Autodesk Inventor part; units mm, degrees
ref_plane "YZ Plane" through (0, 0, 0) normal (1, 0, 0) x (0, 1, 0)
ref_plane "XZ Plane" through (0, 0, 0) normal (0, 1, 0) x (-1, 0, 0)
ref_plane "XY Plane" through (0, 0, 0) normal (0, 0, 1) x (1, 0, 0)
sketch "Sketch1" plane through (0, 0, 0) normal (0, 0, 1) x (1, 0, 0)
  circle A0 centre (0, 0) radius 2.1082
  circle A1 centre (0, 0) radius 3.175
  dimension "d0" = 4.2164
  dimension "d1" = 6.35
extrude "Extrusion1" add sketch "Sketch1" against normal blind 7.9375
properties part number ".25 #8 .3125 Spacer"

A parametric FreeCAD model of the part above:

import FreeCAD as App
import Part
import Sketcher

V = App.Vector
Q = App.Units.Quantity

doc = App.newDocument("Part")
body = doc.addObject("PartDesign::Body", "Body")

sketch1 = body.newObject("Sketcher::SketchObject", "Sketch")
sketch1.AttachmentSupport = (doc.getObject("XY_Plane"), [""])
sketch1.MapMode = "FlatFace"
sketch1.addGeometry([
    Part.Circle(V(0, 0, 0), V(0, 0, 1), 3.2),
    Part.Circle(V(0, 0, 0), V(0, 0, 1), 2.1),
], False)
sketch1.addConstraint([
    Sketcher.Constraint("Coincident", 0, 3, -1, 1),
    Sketcher.Constraint("Coincident", 1, 3, -1, 1),
    Sketcher.Constraint("Diameter", 0, Q("0.25 in")),
    Sketcher.Constraint("Diameter", 1, Q("0.166 in")),
])
pad1 = body.newObject("PartDesign::Pad", "Pad")
pad1.Profile = sketch1
pad1.Length = Q("0.3125 in")
pad1.Reversed = True

doc.recompute()
